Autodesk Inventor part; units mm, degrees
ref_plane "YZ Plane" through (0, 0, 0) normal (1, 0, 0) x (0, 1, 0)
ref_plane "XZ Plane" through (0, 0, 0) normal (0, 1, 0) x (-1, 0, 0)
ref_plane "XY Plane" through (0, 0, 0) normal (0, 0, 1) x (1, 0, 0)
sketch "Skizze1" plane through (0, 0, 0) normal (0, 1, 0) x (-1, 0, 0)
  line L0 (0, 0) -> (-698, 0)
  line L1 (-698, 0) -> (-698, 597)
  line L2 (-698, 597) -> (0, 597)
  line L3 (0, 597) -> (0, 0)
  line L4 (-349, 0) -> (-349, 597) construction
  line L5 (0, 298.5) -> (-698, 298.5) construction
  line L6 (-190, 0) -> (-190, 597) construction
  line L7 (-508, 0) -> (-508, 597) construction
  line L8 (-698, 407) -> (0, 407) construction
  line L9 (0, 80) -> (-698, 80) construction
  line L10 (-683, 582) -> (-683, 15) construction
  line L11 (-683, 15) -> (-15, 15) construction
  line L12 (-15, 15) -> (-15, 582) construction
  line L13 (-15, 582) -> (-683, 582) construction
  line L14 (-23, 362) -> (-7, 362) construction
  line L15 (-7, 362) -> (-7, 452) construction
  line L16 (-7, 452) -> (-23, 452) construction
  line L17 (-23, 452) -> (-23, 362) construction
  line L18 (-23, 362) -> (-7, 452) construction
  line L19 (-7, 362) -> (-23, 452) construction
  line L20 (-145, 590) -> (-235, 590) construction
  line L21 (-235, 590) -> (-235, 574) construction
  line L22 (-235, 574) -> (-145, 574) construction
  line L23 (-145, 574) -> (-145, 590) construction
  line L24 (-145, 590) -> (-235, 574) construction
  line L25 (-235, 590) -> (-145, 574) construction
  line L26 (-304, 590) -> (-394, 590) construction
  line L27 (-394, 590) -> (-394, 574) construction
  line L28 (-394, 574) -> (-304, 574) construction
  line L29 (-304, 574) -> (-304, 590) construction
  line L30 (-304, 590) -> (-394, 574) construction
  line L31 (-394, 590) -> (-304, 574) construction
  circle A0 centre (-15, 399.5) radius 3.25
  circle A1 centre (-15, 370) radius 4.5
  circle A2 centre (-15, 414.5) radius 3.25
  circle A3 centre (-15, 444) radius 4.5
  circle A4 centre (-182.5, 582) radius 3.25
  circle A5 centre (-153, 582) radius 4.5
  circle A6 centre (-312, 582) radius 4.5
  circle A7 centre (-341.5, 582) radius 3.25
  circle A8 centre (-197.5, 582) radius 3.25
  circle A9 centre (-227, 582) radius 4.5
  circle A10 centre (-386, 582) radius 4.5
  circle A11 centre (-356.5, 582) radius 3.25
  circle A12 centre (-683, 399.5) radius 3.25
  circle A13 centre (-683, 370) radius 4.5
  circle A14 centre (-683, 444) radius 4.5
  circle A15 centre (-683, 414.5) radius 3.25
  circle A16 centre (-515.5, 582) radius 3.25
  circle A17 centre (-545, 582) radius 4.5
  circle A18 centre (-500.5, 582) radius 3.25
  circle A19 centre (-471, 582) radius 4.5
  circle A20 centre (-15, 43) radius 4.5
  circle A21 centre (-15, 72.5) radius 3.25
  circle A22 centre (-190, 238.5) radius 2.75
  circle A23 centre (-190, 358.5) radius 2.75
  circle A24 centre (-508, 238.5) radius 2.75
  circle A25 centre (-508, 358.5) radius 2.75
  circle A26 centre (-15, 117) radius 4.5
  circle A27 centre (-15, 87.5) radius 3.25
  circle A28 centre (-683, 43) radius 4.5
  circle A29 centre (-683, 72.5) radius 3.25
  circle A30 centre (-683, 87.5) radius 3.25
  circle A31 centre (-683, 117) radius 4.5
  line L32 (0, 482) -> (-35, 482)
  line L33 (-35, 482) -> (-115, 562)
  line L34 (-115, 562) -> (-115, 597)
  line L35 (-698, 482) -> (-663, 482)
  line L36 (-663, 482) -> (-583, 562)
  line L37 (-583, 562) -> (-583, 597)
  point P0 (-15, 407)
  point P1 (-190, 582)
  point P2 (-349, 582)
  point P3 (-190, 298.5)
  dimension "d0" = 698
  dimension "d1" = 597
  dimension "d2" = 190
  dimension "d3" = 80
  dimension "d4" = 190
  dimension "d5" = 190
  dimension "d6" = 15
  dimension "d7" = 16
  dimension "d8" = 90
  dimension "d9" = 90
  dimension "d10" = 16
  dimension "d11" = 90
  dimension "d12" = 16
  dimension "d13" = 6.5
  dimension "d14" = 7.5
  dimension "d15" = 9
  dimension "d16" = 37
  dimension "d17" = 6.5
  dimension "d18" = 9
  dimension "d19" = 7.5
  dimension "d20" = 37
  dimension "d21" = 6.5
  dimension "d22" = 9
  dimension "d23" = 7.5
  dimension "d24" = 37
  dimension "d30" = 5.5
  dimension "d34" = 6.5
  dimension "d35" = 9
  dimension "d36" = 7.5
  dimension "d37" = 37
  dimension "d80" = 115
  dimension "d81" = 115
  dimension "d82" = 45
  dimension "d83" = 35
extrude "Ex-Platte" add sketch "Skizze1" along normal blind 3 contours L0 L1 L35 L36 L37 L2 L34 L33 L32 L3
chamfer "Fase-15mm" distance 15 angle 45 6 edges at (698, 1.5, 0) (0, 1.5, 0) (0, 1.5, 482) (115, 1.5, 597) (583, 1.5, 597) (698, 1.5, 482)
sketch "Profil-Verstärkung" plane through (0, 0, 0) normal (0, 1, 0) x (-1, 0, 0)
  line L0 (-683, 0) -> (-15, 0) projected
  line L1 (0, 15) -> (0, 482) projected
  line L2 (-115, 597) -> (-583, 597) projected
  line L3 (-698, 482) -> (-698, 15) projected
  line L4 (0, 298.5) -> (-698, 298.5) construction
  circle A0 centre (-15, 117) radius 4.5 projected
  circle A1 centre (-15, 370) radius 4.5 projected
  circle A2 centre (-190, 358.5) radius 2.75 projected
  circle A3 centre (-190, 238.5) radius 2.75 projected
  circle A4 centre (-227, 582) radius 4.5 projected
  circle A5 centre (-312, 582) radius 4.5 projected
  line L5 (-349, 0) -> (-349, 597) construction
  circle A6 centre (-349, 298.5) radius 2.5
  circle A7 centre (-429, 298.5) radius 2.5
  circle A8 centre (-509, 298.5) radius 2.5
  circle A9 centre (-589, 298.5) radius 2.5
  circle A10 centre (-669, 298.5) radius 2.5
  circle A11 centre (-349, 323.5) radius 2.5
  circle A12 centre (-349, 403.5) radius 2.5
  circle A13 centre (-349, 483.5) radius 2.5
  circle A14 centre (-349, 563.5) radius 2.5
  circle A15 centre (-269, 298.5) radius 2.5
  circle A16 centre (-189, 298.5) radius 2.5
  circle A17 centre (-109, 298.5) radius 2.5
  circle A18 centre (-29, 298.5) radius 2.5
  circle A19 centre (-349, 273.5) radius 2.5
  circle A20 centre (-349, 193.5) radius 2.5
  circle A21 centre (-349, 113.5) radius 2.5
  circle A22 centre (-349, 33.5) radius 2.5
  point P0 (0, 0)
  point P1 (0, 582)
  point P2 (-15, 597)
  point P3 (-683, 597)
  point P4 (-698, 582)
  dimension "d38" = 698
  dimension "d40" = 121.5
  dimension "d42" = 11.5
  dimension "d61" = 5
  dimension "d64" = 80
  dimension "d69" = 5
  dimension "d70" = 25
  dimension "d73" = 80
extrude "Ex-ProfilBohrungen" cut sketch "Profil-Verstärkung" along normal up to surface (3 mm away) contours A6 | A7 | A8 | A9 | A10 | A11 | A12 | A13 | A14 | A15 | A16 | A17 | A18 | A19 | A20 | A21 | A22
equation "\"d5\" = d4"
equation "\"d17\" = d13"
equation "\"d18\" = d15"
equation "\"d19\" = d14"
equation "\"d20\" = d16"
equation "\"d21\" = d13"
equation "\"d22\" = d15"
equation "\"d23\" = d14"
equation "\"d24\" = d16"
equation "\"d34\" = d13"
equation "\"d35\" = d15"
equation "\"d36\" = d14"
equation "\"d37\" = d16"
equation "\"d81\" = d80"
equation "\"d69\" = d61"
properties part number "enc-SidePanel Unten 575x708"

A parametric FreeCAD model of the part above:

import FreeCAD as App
import Part
import Sketcher
Q = App.Units.Quantity


def edges_at(feature, points):
    """Names of the edges that pass closest to the given points."""
    edges = feature.Shape.Edges
    near = lambda p: min(range(len(edges)), key=lambda i: edges[i].distToShape(Part.Vertex(*p))[0])
    return sorted({f"Edge{near(p) + 1}" for p in points})

doc = App.newDocument("Part")
body = doc.addObject("PartDesign::Body", "Body")

# Sketch on XZ plane
sketch1 = doc.addObject("Sketcher::SketchObject", "Sketch")
body.addObject(sketch1)
sketch1.AttachmentSupport = (doc.XZ_Plane, [""])
sketch1.MapMode = "FlatFace"
sketch1.addGeometry(Part.LineSegment(App.Vector(698, 0, 0), App.Vector(0, 0, 0)), False)
sketch1.addGeometry(Part.LineSegment(App.Vector(0, 0, 0), App.Vector(0, 482, 0)), False)
sketch1.addGeometry(Part.LineSegment(App.Vector(0, 482, 0), App.Vector(35, 482, 0)), False)
sketch1.addGeometry(Part.LineSegment(App.Vector(35, 482, 0), App.Vector(115, 562, 0)), False)
sketch1.addGeometry(Part.LineSegment(App.Vector(115, 562, 0), App.Vector(115, 597, 0)), False)
sketch1.addGeometry(Part.LineSegment(App.Vector(115, 597, 0), App.Vector(583, 597, 0)), False)
sketch1.addGeometry(Part.LineSegment(App.Vector(583, 597, 0), App.Vector(583, 562, 0)), False)
sketch1.addGeometry(Part.LineSegment(App.Vector(583, 562, 0), App.Vector(663, 482, 0)), False)
sketch1.addGeometry(Part.LineSegment(App.Vector(663, 482, 0), App.Vector(698, 482, 0)), False)
sketch1.addGeometry(Part.LineSegment(App.Vector(698, 482, 0), App.Vector(698, 0, 0)), False)
sketch1.addGeometry(Part.Circle(App.Vector(683, 43, 0), App.Vector(0, 0, 1), 4.5), False)
sketch1.addGeometry(Part.Circle(App.Vector(683, 72.5, 0), App.Vector(0, 0, 1), 3.25), False)
sketch1.addGeometry(Part.Circle(App.Vector(683, 87.5, 0), App.Vector(0, 0, 1), 3.25), False)
sketch1.addGeometry(Part.Circle(App.Vector(683, 117, 0), App.Vector(0, 0, 1), 4.5), False)
sketch1.addGeometry(Part.Circle(App.Vector(508, 238.5, 0), App.Vector(0, 0, 1), 2.75), False)
sketch1.addGeometry(Part.Circle(App.Vector(15, 43, 0), App.Vector(0, 0, 1), 4.5), False)
sketch1.addGeometry(Part.Circle(App.Vector(15, 72.5, 0), App.Vector(0, 0, 1), 3.25), False)
sketch1.addGeometry(Part.Circle(App.Vector(15, 87.5, 0), App.Vector(0, 0, 1), 3.25), False)
sketch1.addGeometry(Part.Circle(App.Vector(15, 117, 0), App.Vector(0, 0, 1), 4.5), False)
sketch1.addGeometry(Part.Circle(App.Vector(190, 238.5, 0), App.Vector(0, 0, 1), 2.75), False)
sketch1.addGeometry(Part.Circle(App.Vector(683, 370, 0), App.Vector(0, 0, 1), 4.5), False)
sketch1.addGeometry(Part.Circle(App.Vector(683, 399.5, 0), App.Vector(0, 0, 1), 3.25), False)
sketch1.addGeometry(Part.Circle(App.Vector(683, 414.5, 0), App.Vector(0, 0, 1), 3.25), False)
sketch1.addGeometry(Part.Circle(App.Vector(683, 444, 0), App.Vector(0, 0, 1), 4.5), False)
sketch1.addGeometry(Part.Circle(App.Vector(508, 358.5, 0), App.Vector(0, 0, 1), 2.75), False)
sketch1.addGeometry(Part.Circle(App.Vector(545, 582, 0), App.Vector(0, 0, 1), 4.5), False)
sketch1.addGeometry(Part.Circle(App.Vector(515.5, 582, 0), App.Vector(0, 0, 1), 3.25), False)
sketch1.addGeometry(Part.Circle(App.Vector(500.5, 582, 0), App.Vector(0, 0, 1), 3.25), False)
sketch1.addGeometry(Part.Circle(App.Vector(471, 582, 0), App.Vector(0, 0, 1), 4.5), False)
sketch1.addGeometry(Part.Circle(App.Vector(386, 582, 0), App.Vector(0, 0, 1), 4.5), False)
sketch1.addGeometry(Part.Circle(App.Vector(356.5, 582, 0), App.Vector(0, 0, 1), 3.25), False)
sketch1.addGeometry(Part.Circle(App.Vector(190, 358.5, 0), App.Vector(0, 0, 1), 2.75), False)
sketch1.addGeometry(Part.Circle(App.Vector(15, 370, 0), App.Vector(0, 0, 1), 4.5), False)
sketch1.addGeometry(Part.Circle(App.Vector(15, 399.5, 0), App.Vector(0, 0, 1), 3.25), False)
sketch1.addGeometry(Part.Circle(App.Vector(15, 414.5, 0), App.Vector(0, 0, 1), 3.25), False)
sketch1.addGeometry(Part.Circle(App.Vector(15, 444, 0), App.Vector(0, 0, 1), 4.5), False)
sketch1.addGeometry(Part.Circle(App.Vector(341.5, 582, 0), App.Vector(0, 0, 1), 3.25), False)
sketch1.addGeometry(Part.Circle(App.Vector(312, 582, 0), App.Vector(0, 0, 1), 4.5), False)
sketch1.addGeometry(Part.Circle(App.Vector(227, 582, 0), App.Vector(0, 0, 1), 4.5), False)
sketch1.addGeometry(Part.Circle(App.Vector(197.5, 582, 0), App.Vector(0, 0, 1), 3.25), False)
sketch1.addGeometry(Part.Circle(App.Vector(182.5, 582, 0), App.Vector(0, 0, 1), 3.25), False)
sketch1.addGeometry(Part.Circle(App.Vector(153, 582, 0), App.Vector(0, 0, 1), 4.5), False)
sketch1.addConstraint(Sketcher.Constraint("Coincident", 0, 2, 1, 1))
sketch1.addConstraint(Sketcher.Constraint("Coincident", 1, 2, 2, 1))
sketch1.addConstraint(Sketcher.Constraint("Coincident", 2, 2, 3, 1))
sketch1.addConstraint(Sketcher.Constraint("Coincident", 3, 2, 4, 1))
sketch1.addConstraint(Sketcher.Constraint("Coincident", 4, 2, 5, 1))
sketch1.addConstraint(Sketcher.Constraint("Coincident", 5, 2, 6, 1))
sketch1.addConstraint(Sketcher.Constraint("Coincident", 6, 2, 7, 1))
sketch1.addConstraint(Sketcher.Constraint("Coincident", 7, 2, 8, 1))
sketch1.addConstraint(Sketcher.Constraint("Coincident", 8, 2, 9, 1))
sketch1.addConstraint(Sketcher.Constraint("Coincident", 9, 2, 0, 1))
sketch1.addConstraint(Sketcher.Constraint("Horizontal", 0))
sketch1.addConstraint(Sketcher.Constraint("Vertical", 1))
sketch1.addConstraint(Sketcher.Constraint("Horizontal", 2))
sketch1.addConstraint(Sketcher.Constraint("Vertical", 4))
sketch1.addConstraint(Sketcher.Constraint("Horizontal", 5))
sketch1.addConstraint(Sketcher.Constraint("Vertical", 6))
sketch1.addConstraint(Sketcher.Constraint("Horizontal", 8))
sketch1.addConstraint(Sketcher.Constraint("Vertical", 9))
sketch1.addConstraint(Sketcher.Constraint("Coincident", 0, 2, -1, 1))
sketch1.addConstraint(Sketcher.Constraint("Equal", 11, 12))
sketch1.addConstraint(Sketcher.Constraint("Equal", 10, 13))
sketch1.addConstraint(Sketcher.Constraint("Equal", 13, 15))
sketch1.addConstraint(Sketcher.Constraint("Equal", 12, 16))
sketch1.addConstraint(Sketcher.Constraint("Equal", 16, 17))
sketch1.addConstraint(Sketcher.Constraint("Equal", 15, 18))
sketch1.addConstraint(Sketcher.Constraint("Equal", 14, 19))
sketch1.addConstraint(Sketcher.Constraint("Equal", 18, 20))
sketch1.addConstraint(Sketcher.Constraint("Equal", 17, 21))
sketch1.addConstraint(Sketcher.Constraint("Equal", 21, 22))
sketch1.addConstraint(Sketcher.Constraint("Equal", 20, 23))
sketch1.addConstraint(Sketcher.Constraint("Equal", 19, 24))
sketch1.addConstraint(Sketcher.Constraint("Equal", 23, 25))
sketch1.addConstraint(Sketcher.Constraint("Equal", 22, 26))
sketch1.addConstraint(Sketcher.Constraint("Equal", 26, 27))
sketch1.addConstraint(Sketcher.Constraint("Equal", 25, 28))
sketch1.addConstraint(Sketcher.Constraint("Equal", 28, 29))
sketch1.addConstraint(Sketcher.Constraint("Equal", 27, 30))
sketch1.addConstraint(Sketcher.Constraint("Equal", 24, 31))
sketch1.addConstraint(Sketcher.Constraint("Equal", 29, 32))
sketch1.addConstraint(Sketcher.Constraint("Equal", 30, 33))
sketch1.addConstraint(Sketcher.Constraint("Equal", 33, 34))
sketch1.addConstraint(Sketcher.Constraint("Equal", 32, 35))
sketch1.addConstraint(Sketcher.Constraint("Equal", 34, 36))
sketch1.addConstraint(Sketcher.Constraint("Equal", 35, 37))
sketch1.addConstraint(Sketcher.Constraint("Equal", 37, 38))
sketch1.addConstraint(Sketcher.Constraint("Equal", 36, 39))
sketch1.addConstraint(Sketcher.Constraint("Equal", 39, 40))
sketch1.addConstraint(Sketcher.Constraint("Equal", 38, 41))
sketch1.addConstraint(Sketcher.Constraint("Perpendicular", 3, 7))
sketch1.addConstraint(Sketcher.Constraint("Horizontal", 10, 3, 15, 3))
sketch1.addConstraint(Sketcher.Constraint("Horizontal", 11, 3, 16, 3))
sketch1.addConstraint(Sketcher.Constraint("Horizontal", 12, 3, 17, 3))
sketch1.addConstraint(Sketcher.Constraint("Horizontal", 13, 3, 18, 3))
sketch1.addConstraint(Sketcher.Constraint("Horizontal", 14, 3, 19, 3))
sketch1.addConstraint(Sketcher.Constraint("Horizontal", 25, 3, 26, 3))
sketch1.addConstraint(Sketcher.Constraint("Horizontal", 26, 3, 27, 3))
sketch1.addConstraint(Sketcher.Constraint("Horizontal", 27, 3, 28, 3))
sketch1.addConstraint(Sketcher.Constraint("Horizontal", 28, 3, 29, 3))
sketch1.addConstraint(Sketcher.Constraint("Horizontal", 29, 3, 30, 3))
sketch1.addConstraint(Sketcher.Constraint("Horizontal", 24, 3, 31, 3))
sketch1.addConstraint(Sketcher.Constraint("Horizontal", 20, 3, 32, 3))
sketch1.addConstraint(Sketcher.Constraint("Horizontal", 21, 3, 33, 3))
sketch1.addConstraint(Sketcher.Constraint("Horizontal", 22, 3, 34, 3))
sketch1.addConstraint(Sketcher.Constraint("Horizontal", 23, 3, 35, 3))
sketch1.addConstraint(Sketcher.Constraint("Horizontal", 30, 3, 36, 3))
sketch1.addConstraint(Sketcher.Constraint("Horizontal", 36, 3, 37, 3))
sketch1.addConstraint(Sketcher.Constraint("Horizontal", 37, 3, 38, 3))
sketch1.addConstraint(Sketcher.Constraint("Horizontal", 38, 3, 39, 3))
sketch1.addConstraint(Sketcher.Constraint("Horizontal", 39, 3, 40, 3))
sketch1.addConstraint(Sketcher.Constraint("Horizontal", 40, 3, 41, 3))
sketch1.addConstraint(Sketcher.Constraint("Horizontal", 3, 2, 6, 2))
sketch1.addConstraint(Sketcher.Constraint("Horizontal", 2, 2, 7, 2))
sketch1.addConstraint(Sketcher.Constraint("Vertical", 10, 3, 11, 3))
sketch1.addConstraint(Sketcher.Constraint("Vertical", 11, 3, 12, 3))
sketch1.addConstraint(Sketcher.Constraint("Vertical", 12, 3, 13, 3))
sketch1.addConstraint(Sketcher.Constraint("Vertical", 15, 3, 16, 3))
sketch1.addConstraint(Sketcher.Constraint("Vertical", 16, 3, 17, 3))
sketch1.addConstraint(Sketcher.Constraint("Vertical", 17, 3, 18, 3))
sketch1.addConstraint(Sketcher.Constraint("Vertical", 13, 3, 20, 3))
sketch1.addConstraint(Sketcher.Constraint("Vertical", 20, 3, 21, 3))
sketch1.addConstraint(Sketcher.Constraint("Vertical", 21, 3, 22, 3))
sketch1.addConstraint(Sketcher.Constraint("Vertical", 22, 3, 23, 3))
sketch1.addConstraint(Sketcher.Constraint("Vertical", 14, 3, 24, 3))
sketch1.addConstraint(Sketcher.Constraint("Vertical", 19, 3, 31, 3))
sketch1.addConstraint(Sketcher.Constraint("Vertical", 18, 3, 32, 3))
sketch1.addConstraint(Sketcher.Constraint("Vertical", 32, 3, 33, 3))
sketch1.addConstraint(Sketcher.Constraint("Vertical", 33, 3, 34, 3))
sketch1.addConstraint(Sketcher.Constraint("Vertical", 34, 3, 35, 3))
sketch1.addConstraint(Sketcher.Constraint("Equal", 2, 8))
sketch1.addConstraint(Sketcher.Constraint("Equal", 8, 4))
sketch1.addConstraint(Sketcher.Constraint("Equal", 3, 7))
sketch1.addConstraint(Sketcher.Constraint("Diameter", 10, Q("9 mm")))
sketch1.addConstraint(Sketcher.Constraint("Diameter", 11, Q("6.5 mm")))
sketch1.addConstraint(Sketcher.Constraint("Diameter", 14, Q("5.5 mm")))
sketch1.addConstraint(Sketcher.Constraint("DistanceX", 0, 2, 0, 1, Q("698 mm")))
sketch1.addConstraint(Sketcher.Constraint("DistanceX", 2, 1, 2, 2, Q("35 mm")))
sketch1.addConstraint(Sketcher.Constraint("DistanceX", -1, 1, 15, 3, Q("15 mm")))
sketch1.addConstraint(Sketcher.Constraint("DistanceX", -1, 1, 19, 3, Q("190 mm")))
sketch1.addConstraint(Sketcher.Constraint("DistanceX", -1, 1, 3, 2, Q("115 mm")))
sketch1.addConstraint(Sketcher.Constraint("DistanceY", -1, 1, 4, 2, Q("597 mm")))
sketch1.addConstraint(Sketcher.Constraint("DistanceY", 11, 3, 12, 3, Q("15 mm")))
sketch1.addConstraint(Sketcher.Constraint("DistanceY", 21, 3, 22, 3, Q("15 mm")))
sketch1.addConstraint(Sketcher.Constraint("DistanceX", 24, 3, 25, 3, Q("37 mm")))
sketch1.addConstraint(Sketcher.Constraint("DistanceX", 27, 3, 26, 3, Q("15 mm")))
sketch1.addConstraint(Sketcher.Constraint("DistanceX", 28, 3, 24, 3, Q("37 mm")))
sketch1.addConstraint(Sketcher.Constraint("DistanceX", 36, 3, 30, 3, Q("15 mm")))
sketch1.addConstraint(Sketcher.Constraint("DistanceX", 31, 3, 38, 3, Q("37 mm")))
sketch1.addConstraint(Sketcher.Constraint("DistanceX", 40, 3, 39, 3, Q("15 mm")))
sketch1.addConstraint(Sketcher.Constraint("DistanceY", 41, 3, 4, 2, Q("15 mm")))
sketch1.addConstraint(Sketcher.Constraint("DistanceX", 23, 3, 8, 2, Q("15 mm")))
sketch1.addConstraint(Sketcher.Constraint("DistanceX", 14, 3, 9, 2, Q("190 mm")))
sketch1.addConstraint(Sketcher.Constraint("DistanceX", 24, 3, 26, 3, Q("7.5 mm")))
sketch1.addConstraint(Sketcher.Constraint("DistanceY", -1, 1, 10, 3, Q("43 mm")))
sketch1.addConstraint(Sketcher.Constraint("DistanceY", -1, 1, 13, 3, Q("117 mm")))
sketch1.addConstraint(Sketcher.Constraint("DistanceY", -1, 1, 20, 3, Q("370 mm")))
sketch1.addConstraint(Sketcher.Constraint("DistanceY", -1, 1, 23, 3, Q("444 mm")))
sketch1.addConstraint(Sketcher.Constraint("DistanceX", -1, 1, 29, 3, Q("386 mm")))
sketch1.addConstraint(Sketcher.Constraint("DistanceX", -1, 1, 37, 3, Q("312 mm")))
sketch1.addConstraint(Sketcher.Constraint("DistanceX", -1, 1, 41, 3, Q("153 mm")))
sketch1.addConstraint(Sketcher.Constraint("DistanceY", 12, 3, 14, 3, Q("151 mm")))
sketch1.addConstraint(Sketcher.Constraint("DistanceY", 14, 3, 21, 3, Q("161 mm")))
sketch1.addConstraint(Sketcher.Constraint("DistanceY", 14, 3, 24, 3, Q("120 mm")))
sketch1.addConstraint(Sketcher.Constraint("DistanceX", 30, 3, 27, 3, Q("144 mm")))
sketch1.addConstraint(Sketcher.Constraint("DistanceX", 39, 3, 36, 3, Q("144 mm")))
sketch1.addConstraint(Sketcher.Constraint("DistanceY", -1, 1, 11, 3, Q("72.5 mm")))
pad1 = doc.addObject("PartDesign::Pad", "Pad")
body.addObject(pad1)
pad1.Profile = sketch1
pad1.Length = 3
pad1.Reversed = True
doc.recompute()

chamfer = doc.addObject("PartDesign::Chamfer", "Chamfer")
body.addObject(chamfer)
chamfer.Base = (pad1, edges_at(pad1, [
    (698, 1.5, 0),
    (0, 1.5, 0),
    (0, 1.5, 482),
    (115, 1.5, 597),
    (583, 1.5, 597),
    (698, 1.5, 482),
]))
chamfer.Size = 15

# Sketch on XZ plane
sketch2 = doc.addObject("Sketcher::SketchObject", "Sketch001")
body.addObject(sketch2)
sketch2.AttachmentSupport = (doc.XZ_Plane, [""])
sketch2.MapMode = "FlatFace"
sketch2.addGeometry(Part.Circle(App.Vector(349, 298.5, 0), App.Vector(0, 0, 1), 2.5), False)
sketch2.addGeometry(Part.Circle(App.Vector(429, 298.5, 0), App.Vector(0, 0, 1), 2.5), False)
sketch2.addGeometry(Part.Circle(App.Vector(509, 298.5, 0), App.Vector(0, 0, 1), 2.5), False)
sketch2.addGeometry(Part.Circle(App.Vector(589, 298.5, 0), App.Vector(0, 0, 1), 2.5), False)
sketch2.addGeometry(Part.Circle(App.Vector(669, 298.5, 0), App.Vector(0, 0, 1), 2.5), False)
sketch2.addGeometry(Part.Circle(App.Vector(349, 323.5, 0), App.Vector(0, 0, 1), 2.5), False)
sketch2.addGeometry(Part.Circle(App.Vector(349, 403.5, 0), App.Vector(0, 0, 1), 2.5), False)
sketch2.addGeometry(Part.Circle(App.Vector(349, 483.5, 0), App.Vector(0, 0, 1), 2.5), False)
sketch2.addGeometry(Part.Circle(App.Vector(349, 563.5, 0), App.Vector(0, 0, 1), 2.5), False)
sketch2.addGeometry(Part.Circle(App.Vector(269, 298.5, 0), App.Vector(0, 0, 1), 2.5), False)
sketch2.addGeometry(Part.Circle(App.Vector(189, 298.5, 0), App.Vector(0, 0, 1), 2.5), False)
sketch2.addGeometry(Part.Circle(App.Vector(109, 298.5, 0), App.Vector(0, 0, 1), 2.5), False)
sketch2.addGeometry(Part.Circle(App.Vector(29, 298.5, 0), App.Vector(0, 0, 1), 2.5), False)
sketch2.addGeometry(Part.Circle(App.Vector(349, 273.5, 0), App.Vector(0, 0, 1), 2.5), False)
sketch2.addGeometry(Part.Circle(App.Vector(349, 193.5, 0), App.Vector(0, 0, 1), 2.5), False)
sketch2.addGeometry(Part.Circle(App.Vector(349, 113.5, 0), App.Vector(0, 0, 1), 2.5), False)
sketch2.addGeometry(Part.Circle(App.Vector(349, 33.5, 0), App.Vector(0, 0, 1), 2.5), False)
sketch2.addConstraint(Sketcher.Constraint("Equal", 0, 1))
sketch2.addConstraint(Sketcher.Constraint("Equal", 1, 2))
sketch2.addConstraint(Sketcher.Constraint("Equal", 2, 3))
sketch2.addConstraint(Sketcher.Constraint("Equal", 3, 4))
sketch2.addConstraint(Sketcher.Constraint("Equal", 4, 5))
sketch2.addConstraint(Sketcher.Constraint("Equal", 5, 6))
sketch2.addConstraint(Sketcher.Constraint("Equal", 6, 7))
sketch2.addConstraint(Sketcher.Constraint("Equal", 7, 8))
sketch2.addConstraint(Sketcher.Constraint("Equal", 8, 9))
sketch2.addConstraint(Sketcher.Constraint("Equal", 9, 10))
sketch2.addConstraint(Sketcher.Constraint("Equal", 10, 11))
sketch2.addConstraint(Sketcher.Constraint("Equal", 11, 12))
sketch2.addConstraint(Sketcher.Constraint("Equal", 12, 13))
sketch2.addConstraint(Sketcher.Constraint("Equal", 13, 14))
sketch2.addConstraint(Sketcher.Constraint("Equal", 14, 15))
sketch2.addConstraint(Sketcher.Constraint("Equal", 15, 16))
sketch2.addConstraint(Sketcher.Constraint("Horizontal", 0, 3, 1, 3))
sketch2.addConstraint(Sketcher.Constraint("Horizontal", 1, 3, 2, 3))
sketch2.addConstraint(Sketcher.Constraint("Horizontal", 2, 3, 3, 3))
sketch2.addConstraint(Sketcher.Constraint("Horizontal", 3, 3, 4, 3))
sketch2.addConstraint(Sketcher.Constraint("Horizontal", 4, 3, 9, 3))
sketch2.addConstraint(Sketcher.Constraint("Horizontal", 9, 3, 10, 3))
sketch2.addConstraint(Sketcher.Constraint("Horizontal", 10, 3, 11, 3))
sketch2.addConstraint(Sketcher.Constraint("Horizontal", 11, 3, 12, 3))
sketch2.addConstraint(Sketcher.Constraint("Vertical", 0, 3, 5, 3))
sketch2.addConstraint(Sketcher.Constraint("Vertical", 5, 3, 6, 3))
sketch2.addConstraint(Sketcher.Constraint("Vertical", 6, 3, 7, 3))
sketch2.addConstraint(Sketcher.Constraint("Vertical", 7, 3, 8, 3))
sketch2.addConstraint(Sketcher.Constraint("Vertical", 8, 3, 13, 3))
sketch2.addConstraint(Sketcher.Constraint("Vertical", 13, 3, 14, 3))
sketch2.addConstraint(Sketcher.Constraint("Vertical", 14, 3, 15, 3))
sketch2.addConstraint(Sketcher.Constraint("Vertical", 15, 3, 16, 3))
sketch2.addConstraint(Sketcher.Constraint("Diameter", 0, Q("5 mm")))
sketch2.addConstraint(Sketcher.Constraint("DistanceX", 0, 3, 1, 3, Q("80 mm")))
sketch2.addConstraint(Sketcher.Constraint("DistanceX", 1, 3, 2, 3, Q("80 mm")))
sketch2.addConstraint(Sketcher.Constraint("DistanceX", 2, 3, 3, 3, Q("80 mm")))
sketch2.addConstraint(Sketcher.Constraint("DistanceX", 3, 3, 4, 3, Q("80 mm")))
sketch2.addConstraint(Sketcher.Constraint("DistanceY", 0, 3, 5, 3, Q("25 mm")))
sketch2.addConstraint(Sketcher.Constraint("DistanceY", 5, 3, 6, 3, Q("80 mm")))
sketch2.addConstraint(Sketcher.Constraint("DistanceY", 6, 3, 7, 3, Q("80 mm")))
sketch2.addConstraint(Sketcher.Constraint("DistanceY", 7, 3, 8, 3, Q("80 mm")))
sketch2.addConstraint(Sketcher.Constraint("DistanceX", 9, 3, 0, 3, Q("80 mm")))
sketch2.addConstraint(Sketcher.Constraint("DistanceX", 10, 3, 9, 3, Q("80 mm")))
sketch2.addConstraint(Sketcher.Constraint("DistanceX", 11, 3, 10, 3, Q("80 mm")))
sketch2.addConstraint(Sketcher.Constraint("DistanceX", 12, 3, 11, 3, Q("80 mm")))
sketch2.addConstraint(Sketcher.Constraint("DistanceY", 13, 3, 0, 3, Q("25 mm")))
sketch2.addConstraint(Sketcher.Constraint("DistanceY", 14, 3, 13, 3, Q("80 mm")))
sketch2.addConstraint(Sketcher.Constraint("DistanceY", 15, 3, 14, 3, Q("80 mm")))
sketch2.addConstraint(Sketcher.Constraint("DistanceY", 16, 3, 15, 3, Q("80 mm")))
sketch2.addConstraint(Sketcher.Constraint("DistanceX", -1, 1, 0, 3, Q("349 mm")))
sketch2.addConstraint(Sketcher.Constraint("DistanceY", -1, 1, 0, 3, Q("298.5 mm")))
pocket1 = doc.addObject("PartDesign::Pocket", "Pocket")
body.addObject(pocket1)
pocket1.Profile = sketch2
pocket1.Length = 3

doc.recompute()
